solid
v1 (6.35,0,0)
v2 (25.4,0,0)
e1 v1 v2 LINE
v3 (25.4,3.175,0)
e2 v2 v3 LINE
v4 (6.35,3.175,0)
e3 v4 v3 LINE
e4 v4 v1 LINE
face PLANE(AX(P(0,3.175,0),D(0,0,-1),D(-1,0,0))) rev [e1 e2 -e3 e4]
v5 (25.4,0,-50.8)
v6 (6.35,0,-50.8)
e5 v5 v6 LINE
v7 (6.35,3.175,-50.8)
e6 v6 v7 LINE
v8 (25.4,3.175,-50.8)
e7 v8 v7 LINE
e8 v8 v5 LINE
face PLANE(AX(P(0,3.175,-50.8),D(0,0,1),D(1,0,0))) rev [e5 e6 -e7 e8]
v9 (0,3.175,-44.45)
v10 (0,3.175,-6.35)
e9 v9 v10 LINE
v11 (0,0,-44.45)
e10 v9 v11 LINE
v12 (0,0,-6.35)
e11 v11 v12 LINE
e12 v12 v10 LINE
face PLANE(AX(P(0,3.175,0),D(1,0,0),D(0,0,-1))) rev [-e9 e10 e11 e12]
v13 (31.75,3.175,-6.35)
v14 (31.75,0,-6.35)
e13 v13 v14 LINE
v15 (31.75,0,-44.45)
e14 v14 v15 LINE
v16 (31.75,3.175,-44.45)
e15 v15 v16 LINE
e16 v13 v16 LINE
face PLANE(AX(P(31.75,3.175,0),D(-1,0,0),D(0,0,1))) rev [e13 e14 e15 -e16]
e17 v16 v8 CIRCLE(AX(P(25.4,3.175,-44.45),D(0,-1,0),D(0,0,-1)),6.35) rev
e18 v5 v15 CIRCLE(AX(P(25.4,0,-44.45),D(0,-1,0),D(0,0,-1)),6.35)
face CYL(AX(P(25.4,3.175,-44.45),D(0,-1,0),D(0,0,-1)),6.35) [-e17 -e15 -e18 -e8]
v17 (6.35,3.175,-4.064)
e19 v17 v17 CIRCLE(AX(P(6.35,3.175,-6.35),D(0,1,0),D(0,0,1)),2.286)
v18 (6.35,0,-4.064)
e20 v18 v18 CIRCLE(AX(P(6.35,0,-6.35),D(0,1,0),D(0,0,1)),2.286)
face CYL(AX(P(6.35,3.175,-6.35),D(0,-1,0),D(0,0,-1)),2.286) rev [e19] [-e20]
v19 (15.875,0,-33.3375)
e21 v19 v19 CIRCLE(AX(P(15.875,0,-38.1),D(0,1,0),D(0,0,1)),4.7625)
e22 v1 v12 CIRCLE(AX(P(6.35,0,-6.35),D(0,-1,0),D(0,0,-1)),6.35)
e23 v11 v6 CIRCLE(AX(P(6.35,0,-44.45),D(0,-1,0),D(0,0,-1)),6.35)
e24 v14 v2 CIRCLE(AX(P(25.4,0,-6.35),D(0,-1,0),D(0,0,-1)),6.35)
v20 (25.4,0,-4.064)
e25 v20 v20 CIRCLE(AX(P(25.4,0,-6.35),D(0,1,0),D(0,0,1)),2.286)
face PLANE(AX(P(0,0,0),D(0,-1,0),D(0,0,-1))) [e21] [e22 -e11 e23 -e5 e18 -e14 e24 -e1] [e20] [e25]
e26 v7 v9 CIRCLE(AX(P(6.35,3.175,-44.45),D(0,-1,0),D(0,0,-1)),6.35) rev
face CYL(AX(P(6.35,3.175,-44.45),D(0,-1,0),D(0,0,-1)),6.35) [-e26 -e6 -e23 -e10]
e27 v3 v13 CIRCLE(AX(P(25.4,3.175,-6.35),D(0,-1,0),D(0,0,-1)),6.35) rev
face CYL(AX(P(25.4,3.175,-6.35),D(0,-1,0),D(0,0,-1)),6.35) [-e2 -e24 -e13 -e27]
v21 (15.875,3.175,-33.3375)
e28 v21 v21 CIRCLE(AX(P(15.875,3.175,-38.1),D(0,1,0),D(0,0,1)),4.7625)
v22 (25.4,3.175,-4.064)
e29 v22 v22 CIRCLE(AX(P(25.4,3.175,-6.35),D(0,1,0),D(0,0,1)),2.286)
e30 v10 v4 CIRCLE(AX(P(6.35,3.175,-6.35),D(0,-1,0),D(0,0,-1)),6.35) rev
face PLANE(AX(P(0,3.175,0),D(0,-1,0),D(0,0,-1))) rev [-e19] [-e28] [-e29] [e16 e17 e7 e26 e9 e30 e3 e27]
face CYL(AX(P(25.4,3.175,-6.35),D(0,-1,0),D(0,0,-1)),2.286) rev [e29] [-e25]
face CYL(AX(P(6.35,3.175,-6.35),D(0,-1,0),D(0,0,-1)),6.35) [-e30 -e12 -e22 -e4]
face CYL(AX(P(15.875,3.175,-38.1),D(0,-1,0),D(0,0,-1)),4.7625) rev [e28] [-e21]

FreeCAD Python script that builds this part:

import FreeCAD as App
import Part
import Sketcher
Q = App.Units.Quantity


def edges_at(feature, points):
    """Names of the edges that pass closest to the given points."""
    edges = feature.Shape.Edges
    near = lambda p: min(range(len(edges)), key=lambda i: edges[i].distToShape(Part.Vertex(*p))[0])
    return sorted({f"Edge{near(p) + 1}" for p in points})


def add_polygon(sketch, points):
    """Adds a closed chain of lines whose ends are joined by coincident constraints."""
    first, n = sketch.GeometryCount, len(points)
    for a, b in zip(points, points[1:] + points[:1]):
        sketch.addGeometry(Part.LineSegment(App.Vector(*a, 0), App.Vector(*b, 0)), False)
    for i in range(n):
        sketch.addConstraint(Sketcher.Constraint("Coincident", first + i, 2, first + (i + 1) % n, 1))

doc = App.newDocument("Part")
params = doc.addObject("Spreadsheet::Sheet", "Params")
for row, (alias, value) in enumerate([
    ("sketch1_diameter", "0.18 in"),
    ("sketch1_height", "2 in"),
    ("sketch1_diameter2", "0.375 in"),
    ("sketch1_width", "1.25 in"),
    ("pad1_length", "0.125 in"),
    ("fillet_radius", "0.25 in"),
], start=1):
    params.set(f"A{row}", alias)
    params.set(f"B{row}", "=" + value)
    params.setAlias(f"B{row}", alias)

body = doc.addObject("PartDesign::Body", "Body")

# Sketch on XZ plane
sketch1 = body.newObject("Sketcher::SketchObject", "Sketch")
sketch1.AttachmentSupport = (doc.getObject("XZ_Plane"), [""])
sketch1.MapMode = "FlatFace"
add_polygon(sketch1, [(0, -50.8), (0, 0), (31.75, 0), (31.75, -50.8)])  # lines 0-3
sketch1.addGeometry(Part.Circle(App.Vector(6.35, -6.35, 0), App.Vector(0, 0, 1), 2.286), False)  # 4
sketch1.addGeometry(Part.Circle(App.Vector(25.4, -6.35, 0), App.Vector(0, 0, 1), 2.286), False)  # 5
sketch1.addGeometry(Part.Circle(App.Vector(15.875, -38.1, 0), App.Vector(0, 0, 1), 4.7625), False)  # 6
sketch1.addConstraint([
    Sketcher.Constraint("Vertical", 0),
    Sketcher.Constraint("Horizontal", 1),
    Sketcher.Constraint("Vertical", 2),
    Sketcher.Constraint("Horizontal", 3),
    Sketcher.Constraint("Coincident", 0, 2, -1, 1),
    Sketcher.Constraint("Equal", 4, 5),
    Sketcher.Constraint("Horizontal", 4, 3, 5, 3),
    Sketcher.Constraint("Diameter", 4, Q("0.18 in")),
    Sketcher.Constraint("DistanceY", 0, 1, 0, 2, Q("2 in")),
    Sketcher.Constraint("Diameter", 6, Q("0.375 in")),
    Sketcher.Constraint("DistanceX", -1, 1, 5, 3, Q("1 in")),
    Sketcher.Constraint("DistanceX", 4, 3, 1, 2, Q("1 in")),
    Sketcher.Constraint("DistanceX", 1, 1, 1, 2, Q("1.25 in")),
    Sketcher.Constraint("DistanceY", 6, 3, -1, 1, Q("1.5 in")),
    Sketcher.Constraint("DistanceY", 4, 3, -1, 1, Q("0.25 in")),
    Sketcher.Constraint("DistanceX", -1, 1, 6, 3, Q("0.625 in")),
])
sketch1.setExpression("Constraints[11]", "Params.sketch1_diameter")
sketch1.setExpression("Constraints[12]", "Params.sketch1_height")
sketch1.setExpression("Constraints[13]", "Params.sketch1_diameter2")
sketch1.setExpression("Constraints[16]", "Params.sketch1_width")
pad1 = body.newObject("PartDesign::Pad", "Pad")
pad1.Profile = sketch1
pad1.setExpression("Length", "Params.pad1_length")
pad1.Reversed = True
doc.recompute()

fillet = body.newObject("PartDesign::Fillet", "Fillet")
fillet.Base = (pad1, edges_at(pad1, [
    (0, 1.587, -50.8),
    (31.75, 1.587, -50.8),
    (31.75, 1.587, 0),
    (0, 1.587, 0),
]))
fillet.setExpression("Radius", "Params.fillet_radius")

doc.recompute()
